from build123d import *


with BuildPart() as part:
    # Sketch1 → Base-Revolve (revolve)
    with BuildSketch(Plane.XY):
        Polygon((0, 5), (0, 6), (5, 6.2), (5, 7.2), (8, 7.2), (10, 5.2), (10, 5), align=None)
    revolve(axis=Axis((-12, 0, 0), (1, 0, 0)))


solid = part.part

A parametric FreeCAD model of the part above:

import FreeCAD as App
import Part
import Sketcher
from FreeCAD import Vector
Q = App.Units.Quantity

doc = App.newDocument("Part")
body = doc.addObject("PartDesign::Body", "Body")

# Sketch on XY plane
sketch1 = doc.addObject("Sketcher::SketchObject", "Sketch")
body.addObject(sketch1)
sketch1.AttachmentSupport = (doc.XY_Plane, [""])
sketch1.MapMode = "FlatFace"
sketch1.addGeometry(Part.LineSegment(Vector(0, 6, 0), Vector(0, 5, 0)), False)
sketch1.addGeometry(Part.LineSegment(Vector(0, 5, 0), Vector(10, 5, 0)), False)
sketch1.addGeometry(Part.LineSegment(Vector(10, 5, 0), Vector(10, 5.2, 0)), False)
sketch1.addGeometry(Part.LineSegment(Vector(10, 5.2, 0), Vector(8, 7.2, 0)), False)
sketch1.addGeometry(Part.LineSegment(Vector(8, 7.2, 0), Vector(5, 7.2, 0)), False)
sketch1.addGeometry(Part.LineSegment(Vector(5, 7.2, 0), Vector(5, 6.2, 0)), False)
sketch1.addGeometry(Part.LineSegment(Vector(5, 6.2, 0), Vector(0, 6, 0)), False)
sketch1.addConstraint(Sketcher.Constraint("Coincident", 0, 2, 1, 1))
sketch1.addConstraint(Sketcher.Constraint("Coincident", 1, 2, 2, 1))
sketch1.addConstraint(Sketcher.Constraint("Coincident", 2, 2, 3, 1))
sketch1.addConstraint(Sketcher.Constraint("Coincident", 3, 2, 4, 1))
sketch1.addConstraint(Sketcher.Constraint("Coincident", 4, 2, 5, 1))
sketch1.addConstraint(Sketcher.Constraint("Coincident", 5, 2, 6, 1))
sketch1.addConstraint(Sketcher.Constraint("Coincident", 6, 2, 0, 1))
sketch1.addConstraint(Sketcher.Constraint("Vertical", 0))
sketch1.addConstraint(Sketcher.Constraint("Horizontal", 1))
sketch1.addConstraint(Sketcher.Constraint("Vertical", 2))
sketch1.addConstraint(Sketcher.Constraint("Horizontal", 4))
sketch1.addConstraint(Sketcher.Constraint("Vertical", 5))
sketch1.addConstraint(Sketcher.Constraint("PointOnObject", 0, 2, -2))
sketch1.addConstraint(Sketcher.Constraint("Equal", 0, 5))
sketch1.addConstraint(Sketcher.Constraint("DistanceX", 1, 1, 1, 2, 10.0))
sketch1.addConstraint(Sketcher.Constraint("DistanceX", 4, 2, 4, 1, 3.0))
sketch1.addConstraint(Sketcher.Constraint("DistanceY", 0, 2, 0, 1, 1.0))
sketch1.addConstraint(Sketcher.Constraint("Angle", 3, Q("135 deg")))
sketch1.addConstraint(Sketcher.Constraint("DistanceY", 2, 1, 2, 2, 0.2))
sketch1.addConstraint(Sketcher.Constraint("DistanceY", -1, 1, 0, 2, 5.0))
sketch1.addConstraint(Sketcher.Constraint("DistanceX", -1, 1, 3, 2, 8.0))
revolution = doc.addObject("PartDesign::Revolution", "Revolution")
body.addObject(revolution)
revolution.Profile = sketch1
revolution.ReferenceAxis = (sketch1, ["H_Axis"])
revolution.Angle = 360

doc.recompute()
